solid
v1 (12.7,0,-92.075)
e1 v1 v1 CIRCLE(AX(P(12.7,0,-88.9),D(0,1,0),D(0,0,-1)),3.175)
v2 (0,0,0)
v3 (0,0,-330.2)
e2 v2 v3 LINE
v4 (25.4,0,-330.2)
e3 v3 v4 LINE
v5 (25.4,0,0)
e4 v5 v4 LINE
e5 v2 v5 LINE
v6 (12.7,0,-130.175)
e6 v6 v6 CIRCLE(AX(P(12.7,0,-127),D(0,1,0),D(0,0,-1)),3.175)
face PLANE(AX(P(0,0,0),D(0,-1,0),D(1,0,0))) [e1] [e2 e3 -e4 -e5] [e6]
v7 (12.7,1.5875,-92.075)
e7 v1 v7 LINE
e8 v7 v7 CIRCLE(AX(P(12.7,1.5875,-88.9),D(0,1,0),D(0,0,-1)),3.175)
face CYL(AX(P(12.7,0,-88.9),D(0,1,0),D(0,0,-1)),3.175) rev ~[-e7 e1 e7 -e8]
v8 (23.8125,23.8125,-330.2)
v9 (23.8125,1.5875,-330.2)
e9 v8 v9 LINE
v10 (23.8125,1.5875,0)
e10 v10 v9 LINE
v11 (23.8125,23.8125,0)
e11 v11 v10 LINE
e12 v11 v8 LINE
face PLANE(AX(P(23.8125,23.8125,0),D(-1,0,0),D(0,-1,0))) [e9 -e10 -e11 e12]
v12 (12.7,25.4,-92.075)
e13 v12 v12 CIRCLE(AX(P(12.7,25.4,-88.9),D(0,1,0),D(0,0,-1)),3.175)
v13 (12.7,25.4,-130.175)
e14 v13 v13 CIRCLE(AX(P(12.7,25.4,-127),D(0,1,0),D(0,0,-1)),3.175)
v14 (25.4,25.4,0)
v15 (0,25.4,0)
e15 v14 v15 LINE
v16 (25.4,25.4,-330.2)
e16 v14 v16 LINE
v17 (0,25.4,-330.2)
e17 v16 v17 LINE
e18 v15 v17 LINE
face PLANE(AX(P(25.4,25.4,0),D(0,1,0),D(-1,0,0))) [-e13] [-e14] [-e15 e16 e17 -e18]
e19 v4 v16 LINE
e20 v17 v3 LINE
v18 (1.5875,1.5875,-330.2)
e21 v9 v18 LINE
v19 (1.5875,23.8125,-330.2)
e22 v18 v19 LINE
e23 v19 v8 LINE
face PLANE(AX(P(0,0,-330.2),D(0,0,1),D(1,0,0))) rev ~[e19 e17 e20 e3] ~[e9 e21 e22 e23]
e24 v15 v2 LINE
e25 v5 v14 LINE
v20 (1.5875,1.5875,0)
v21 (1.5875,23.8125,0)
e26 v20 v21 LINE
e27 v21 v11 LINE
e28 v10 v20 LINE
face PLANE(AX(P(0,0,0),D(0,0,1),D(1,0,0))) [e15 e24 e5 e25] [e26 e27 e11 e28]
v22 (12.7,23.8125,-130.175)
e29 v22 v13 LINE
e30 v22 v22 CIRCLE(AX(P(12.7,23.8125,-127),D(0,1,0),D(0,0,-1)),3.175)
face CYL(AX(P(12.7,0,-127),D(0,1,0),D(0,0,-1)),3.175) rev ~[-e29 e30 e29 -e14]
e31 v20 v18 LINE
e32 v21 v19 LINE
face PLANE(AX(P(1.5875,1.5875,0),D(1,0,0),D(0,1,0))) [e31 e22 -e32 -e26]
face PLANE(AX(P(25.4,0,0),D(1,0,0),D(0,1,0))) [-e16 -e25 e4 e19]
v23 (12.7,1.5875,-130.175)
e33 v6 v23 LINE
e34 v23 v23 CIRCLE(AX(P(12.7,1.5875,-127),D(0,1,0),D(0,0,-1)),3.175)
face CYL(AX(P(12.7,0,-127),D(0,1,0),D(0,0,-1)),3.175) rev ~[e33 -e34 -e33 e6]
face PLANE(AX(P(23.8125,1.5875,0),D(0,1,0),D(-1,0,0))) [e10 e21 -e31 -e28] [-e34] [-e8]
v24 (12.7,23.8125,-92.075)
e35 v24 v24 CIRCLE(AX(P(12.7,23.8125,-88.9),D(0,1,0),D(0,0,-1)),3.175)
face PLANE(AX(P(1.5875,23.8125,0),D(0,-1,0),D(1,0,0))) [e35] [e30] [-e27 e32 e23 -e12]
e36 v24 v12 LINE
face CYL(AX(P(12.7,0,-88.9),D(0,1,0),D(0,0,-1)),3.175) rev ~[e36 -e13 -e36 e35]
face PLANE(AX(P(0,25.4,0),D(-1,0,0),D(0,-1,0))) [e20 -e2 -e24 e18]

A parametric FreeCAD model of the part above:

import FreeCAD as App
import Part
import Sketcher
from FreeCAD import Vector
Q = App.Units.Quantity

doc = App.newDocument("Part")
body = doc.addObject("PartDesign::Body", "Body")

sketch1 = body.newObject("Sketcher::SketchObject", "Sketch")
sketch1.AttachmentSupport = (doc.getObject("XY_Plane"), [""])
sketch1.MapMode = "FlatFace"
sketch1.addGeometry([
    Part.LineSegment(Vector(0, 25, 0), Vector(0, 0, 0)),
    Part.LineSegment(Vector(0, 0, 0), Vector(25, 0, 0)),
    Part.LineSegment(Vector(25, 0, 0), Vector(25, 25, 0)),
    Part.LineSegment(Vector(25, 25, 0), Vector(0, 25, 0)),
    Part.LineSegment(Vector(2, 2, 0), Vector(2, 24, 0)),
    Part.LineSegment(Vector(2, 24, 0), Vector(24, 24, 0)),
    Part.LineSegment(Vector(24, 24, 0), Vector(24, 2, 0)),
    Part.LineSegment(Vector(24, 2, 0), Vector(2, 2, 0)),
], False)
sketch1.addConstraint([
    Sketcher.Constraint("Coincident", 0, 2, 1, 1),
    Sketcher.Constraint("Coincident", 1, 2, 2, 1),
    Sketcher.Constraint("Coincident", 2, 2, 3, 1),
    Sketcher.Constraint("Coincident", 3, 2, 0, 1),
    Sketcher.Constraint("Coincident", 4, 2, 5, 1),
    Sketcher.Constraint("Coincident", 5, 2, 6, 1),
    Sketcher.Constraint("Coincident", 6, 2, 7, 1),
    Sketcher.Constraint("Coincident", 7, 2, 4, 1),
    Sketcher.Constraint("Vertical", 0),
    Sketcher.Constraint("Horizontal", 1),
    Sketcher.Constraint("Vertical", 2),
    Sketcher.Constraint("Horizontal", 3),
    Sketcher.Constraint("Vertical", 4),
    Sketcher.Constraint("Horizontal", 5),
    Sketcher.Constraint("Vertical", 6),
    Sketcher.Constraint("Horizontal", 7),
    Sketcher.Constraint("Coincident", 0, 2, -1, 1),
    Sketcher.Constraint("Equal", 3, 0),
    Sketcher.Constraint("Equal", 7, 4),
    Sketcher.Constraint("DistanceX", 1, 1, 1, 2, Q("1 in")),
    Sketcher.Constraint("DistanceX", -1, 1, 4, 2, Q("0.0625 in")),
    Sketcher.Constraint("DistanceY", -1, 1, 6, 2, Q("0.0625 in")),
    Sketcher.Constraint("DistanceY", 4, 2, 3, 2, Q("0.0625 in")),
])
pad1 = body.newObject("PartDesign::Pad", "Pad")
pad1.Profile = sketch1
pad1.Length = Q("13 in")
pad1.Reversed = True

sketch2 = body.newObject("Sketcher::SketchObject", "Sketch001")
sketch2.AttachmentSupport = (doc.getObject("XZ_Plane"), [""])
sketch2.MapMode = "FlatFace"
sketch2.addGeometry([
    Part.Circle(Vector(12.7, -127, 0), Vector(0, 0, 1), 3.2),
    Part.Circle(Vector(12.7, -88.9, 0), Vector(0, 0, 1), 3.2),
], False)
sketch2.addConstraint([
    Sketcher.Constraint("Equal", 0, 1),
    Sketcher.Constraint("Vertical", 0, 3, 1, 3),
    Sketcher.Constraint("Diameter", 0, Q("0.25 in")),
    Sketcher.Constraint("DistanceY", 0, 3, -1, 1, Q("5 in")),
    Sketcher.Constraint("DistanceX", -1, 1, 0, 3, Q("0.5 in")),
    Sketcher.Constraint("DistanceY", 1, 3, -1, 1, Q("3.5 in")),
])
doc.recompute()
hole = body.newObject("PartDesign::Hole", "Hole")
hole.Profile = sketch2
hole.ThreadType = "None"
hole.Diameter = Q("0.25 in")
hole.DepthType = "Dimension"
hole.Depth = Q("1 in")
hole.DrillPoint = "Angled"
hole.DrillPointAngle = 118

doc.recompute()
